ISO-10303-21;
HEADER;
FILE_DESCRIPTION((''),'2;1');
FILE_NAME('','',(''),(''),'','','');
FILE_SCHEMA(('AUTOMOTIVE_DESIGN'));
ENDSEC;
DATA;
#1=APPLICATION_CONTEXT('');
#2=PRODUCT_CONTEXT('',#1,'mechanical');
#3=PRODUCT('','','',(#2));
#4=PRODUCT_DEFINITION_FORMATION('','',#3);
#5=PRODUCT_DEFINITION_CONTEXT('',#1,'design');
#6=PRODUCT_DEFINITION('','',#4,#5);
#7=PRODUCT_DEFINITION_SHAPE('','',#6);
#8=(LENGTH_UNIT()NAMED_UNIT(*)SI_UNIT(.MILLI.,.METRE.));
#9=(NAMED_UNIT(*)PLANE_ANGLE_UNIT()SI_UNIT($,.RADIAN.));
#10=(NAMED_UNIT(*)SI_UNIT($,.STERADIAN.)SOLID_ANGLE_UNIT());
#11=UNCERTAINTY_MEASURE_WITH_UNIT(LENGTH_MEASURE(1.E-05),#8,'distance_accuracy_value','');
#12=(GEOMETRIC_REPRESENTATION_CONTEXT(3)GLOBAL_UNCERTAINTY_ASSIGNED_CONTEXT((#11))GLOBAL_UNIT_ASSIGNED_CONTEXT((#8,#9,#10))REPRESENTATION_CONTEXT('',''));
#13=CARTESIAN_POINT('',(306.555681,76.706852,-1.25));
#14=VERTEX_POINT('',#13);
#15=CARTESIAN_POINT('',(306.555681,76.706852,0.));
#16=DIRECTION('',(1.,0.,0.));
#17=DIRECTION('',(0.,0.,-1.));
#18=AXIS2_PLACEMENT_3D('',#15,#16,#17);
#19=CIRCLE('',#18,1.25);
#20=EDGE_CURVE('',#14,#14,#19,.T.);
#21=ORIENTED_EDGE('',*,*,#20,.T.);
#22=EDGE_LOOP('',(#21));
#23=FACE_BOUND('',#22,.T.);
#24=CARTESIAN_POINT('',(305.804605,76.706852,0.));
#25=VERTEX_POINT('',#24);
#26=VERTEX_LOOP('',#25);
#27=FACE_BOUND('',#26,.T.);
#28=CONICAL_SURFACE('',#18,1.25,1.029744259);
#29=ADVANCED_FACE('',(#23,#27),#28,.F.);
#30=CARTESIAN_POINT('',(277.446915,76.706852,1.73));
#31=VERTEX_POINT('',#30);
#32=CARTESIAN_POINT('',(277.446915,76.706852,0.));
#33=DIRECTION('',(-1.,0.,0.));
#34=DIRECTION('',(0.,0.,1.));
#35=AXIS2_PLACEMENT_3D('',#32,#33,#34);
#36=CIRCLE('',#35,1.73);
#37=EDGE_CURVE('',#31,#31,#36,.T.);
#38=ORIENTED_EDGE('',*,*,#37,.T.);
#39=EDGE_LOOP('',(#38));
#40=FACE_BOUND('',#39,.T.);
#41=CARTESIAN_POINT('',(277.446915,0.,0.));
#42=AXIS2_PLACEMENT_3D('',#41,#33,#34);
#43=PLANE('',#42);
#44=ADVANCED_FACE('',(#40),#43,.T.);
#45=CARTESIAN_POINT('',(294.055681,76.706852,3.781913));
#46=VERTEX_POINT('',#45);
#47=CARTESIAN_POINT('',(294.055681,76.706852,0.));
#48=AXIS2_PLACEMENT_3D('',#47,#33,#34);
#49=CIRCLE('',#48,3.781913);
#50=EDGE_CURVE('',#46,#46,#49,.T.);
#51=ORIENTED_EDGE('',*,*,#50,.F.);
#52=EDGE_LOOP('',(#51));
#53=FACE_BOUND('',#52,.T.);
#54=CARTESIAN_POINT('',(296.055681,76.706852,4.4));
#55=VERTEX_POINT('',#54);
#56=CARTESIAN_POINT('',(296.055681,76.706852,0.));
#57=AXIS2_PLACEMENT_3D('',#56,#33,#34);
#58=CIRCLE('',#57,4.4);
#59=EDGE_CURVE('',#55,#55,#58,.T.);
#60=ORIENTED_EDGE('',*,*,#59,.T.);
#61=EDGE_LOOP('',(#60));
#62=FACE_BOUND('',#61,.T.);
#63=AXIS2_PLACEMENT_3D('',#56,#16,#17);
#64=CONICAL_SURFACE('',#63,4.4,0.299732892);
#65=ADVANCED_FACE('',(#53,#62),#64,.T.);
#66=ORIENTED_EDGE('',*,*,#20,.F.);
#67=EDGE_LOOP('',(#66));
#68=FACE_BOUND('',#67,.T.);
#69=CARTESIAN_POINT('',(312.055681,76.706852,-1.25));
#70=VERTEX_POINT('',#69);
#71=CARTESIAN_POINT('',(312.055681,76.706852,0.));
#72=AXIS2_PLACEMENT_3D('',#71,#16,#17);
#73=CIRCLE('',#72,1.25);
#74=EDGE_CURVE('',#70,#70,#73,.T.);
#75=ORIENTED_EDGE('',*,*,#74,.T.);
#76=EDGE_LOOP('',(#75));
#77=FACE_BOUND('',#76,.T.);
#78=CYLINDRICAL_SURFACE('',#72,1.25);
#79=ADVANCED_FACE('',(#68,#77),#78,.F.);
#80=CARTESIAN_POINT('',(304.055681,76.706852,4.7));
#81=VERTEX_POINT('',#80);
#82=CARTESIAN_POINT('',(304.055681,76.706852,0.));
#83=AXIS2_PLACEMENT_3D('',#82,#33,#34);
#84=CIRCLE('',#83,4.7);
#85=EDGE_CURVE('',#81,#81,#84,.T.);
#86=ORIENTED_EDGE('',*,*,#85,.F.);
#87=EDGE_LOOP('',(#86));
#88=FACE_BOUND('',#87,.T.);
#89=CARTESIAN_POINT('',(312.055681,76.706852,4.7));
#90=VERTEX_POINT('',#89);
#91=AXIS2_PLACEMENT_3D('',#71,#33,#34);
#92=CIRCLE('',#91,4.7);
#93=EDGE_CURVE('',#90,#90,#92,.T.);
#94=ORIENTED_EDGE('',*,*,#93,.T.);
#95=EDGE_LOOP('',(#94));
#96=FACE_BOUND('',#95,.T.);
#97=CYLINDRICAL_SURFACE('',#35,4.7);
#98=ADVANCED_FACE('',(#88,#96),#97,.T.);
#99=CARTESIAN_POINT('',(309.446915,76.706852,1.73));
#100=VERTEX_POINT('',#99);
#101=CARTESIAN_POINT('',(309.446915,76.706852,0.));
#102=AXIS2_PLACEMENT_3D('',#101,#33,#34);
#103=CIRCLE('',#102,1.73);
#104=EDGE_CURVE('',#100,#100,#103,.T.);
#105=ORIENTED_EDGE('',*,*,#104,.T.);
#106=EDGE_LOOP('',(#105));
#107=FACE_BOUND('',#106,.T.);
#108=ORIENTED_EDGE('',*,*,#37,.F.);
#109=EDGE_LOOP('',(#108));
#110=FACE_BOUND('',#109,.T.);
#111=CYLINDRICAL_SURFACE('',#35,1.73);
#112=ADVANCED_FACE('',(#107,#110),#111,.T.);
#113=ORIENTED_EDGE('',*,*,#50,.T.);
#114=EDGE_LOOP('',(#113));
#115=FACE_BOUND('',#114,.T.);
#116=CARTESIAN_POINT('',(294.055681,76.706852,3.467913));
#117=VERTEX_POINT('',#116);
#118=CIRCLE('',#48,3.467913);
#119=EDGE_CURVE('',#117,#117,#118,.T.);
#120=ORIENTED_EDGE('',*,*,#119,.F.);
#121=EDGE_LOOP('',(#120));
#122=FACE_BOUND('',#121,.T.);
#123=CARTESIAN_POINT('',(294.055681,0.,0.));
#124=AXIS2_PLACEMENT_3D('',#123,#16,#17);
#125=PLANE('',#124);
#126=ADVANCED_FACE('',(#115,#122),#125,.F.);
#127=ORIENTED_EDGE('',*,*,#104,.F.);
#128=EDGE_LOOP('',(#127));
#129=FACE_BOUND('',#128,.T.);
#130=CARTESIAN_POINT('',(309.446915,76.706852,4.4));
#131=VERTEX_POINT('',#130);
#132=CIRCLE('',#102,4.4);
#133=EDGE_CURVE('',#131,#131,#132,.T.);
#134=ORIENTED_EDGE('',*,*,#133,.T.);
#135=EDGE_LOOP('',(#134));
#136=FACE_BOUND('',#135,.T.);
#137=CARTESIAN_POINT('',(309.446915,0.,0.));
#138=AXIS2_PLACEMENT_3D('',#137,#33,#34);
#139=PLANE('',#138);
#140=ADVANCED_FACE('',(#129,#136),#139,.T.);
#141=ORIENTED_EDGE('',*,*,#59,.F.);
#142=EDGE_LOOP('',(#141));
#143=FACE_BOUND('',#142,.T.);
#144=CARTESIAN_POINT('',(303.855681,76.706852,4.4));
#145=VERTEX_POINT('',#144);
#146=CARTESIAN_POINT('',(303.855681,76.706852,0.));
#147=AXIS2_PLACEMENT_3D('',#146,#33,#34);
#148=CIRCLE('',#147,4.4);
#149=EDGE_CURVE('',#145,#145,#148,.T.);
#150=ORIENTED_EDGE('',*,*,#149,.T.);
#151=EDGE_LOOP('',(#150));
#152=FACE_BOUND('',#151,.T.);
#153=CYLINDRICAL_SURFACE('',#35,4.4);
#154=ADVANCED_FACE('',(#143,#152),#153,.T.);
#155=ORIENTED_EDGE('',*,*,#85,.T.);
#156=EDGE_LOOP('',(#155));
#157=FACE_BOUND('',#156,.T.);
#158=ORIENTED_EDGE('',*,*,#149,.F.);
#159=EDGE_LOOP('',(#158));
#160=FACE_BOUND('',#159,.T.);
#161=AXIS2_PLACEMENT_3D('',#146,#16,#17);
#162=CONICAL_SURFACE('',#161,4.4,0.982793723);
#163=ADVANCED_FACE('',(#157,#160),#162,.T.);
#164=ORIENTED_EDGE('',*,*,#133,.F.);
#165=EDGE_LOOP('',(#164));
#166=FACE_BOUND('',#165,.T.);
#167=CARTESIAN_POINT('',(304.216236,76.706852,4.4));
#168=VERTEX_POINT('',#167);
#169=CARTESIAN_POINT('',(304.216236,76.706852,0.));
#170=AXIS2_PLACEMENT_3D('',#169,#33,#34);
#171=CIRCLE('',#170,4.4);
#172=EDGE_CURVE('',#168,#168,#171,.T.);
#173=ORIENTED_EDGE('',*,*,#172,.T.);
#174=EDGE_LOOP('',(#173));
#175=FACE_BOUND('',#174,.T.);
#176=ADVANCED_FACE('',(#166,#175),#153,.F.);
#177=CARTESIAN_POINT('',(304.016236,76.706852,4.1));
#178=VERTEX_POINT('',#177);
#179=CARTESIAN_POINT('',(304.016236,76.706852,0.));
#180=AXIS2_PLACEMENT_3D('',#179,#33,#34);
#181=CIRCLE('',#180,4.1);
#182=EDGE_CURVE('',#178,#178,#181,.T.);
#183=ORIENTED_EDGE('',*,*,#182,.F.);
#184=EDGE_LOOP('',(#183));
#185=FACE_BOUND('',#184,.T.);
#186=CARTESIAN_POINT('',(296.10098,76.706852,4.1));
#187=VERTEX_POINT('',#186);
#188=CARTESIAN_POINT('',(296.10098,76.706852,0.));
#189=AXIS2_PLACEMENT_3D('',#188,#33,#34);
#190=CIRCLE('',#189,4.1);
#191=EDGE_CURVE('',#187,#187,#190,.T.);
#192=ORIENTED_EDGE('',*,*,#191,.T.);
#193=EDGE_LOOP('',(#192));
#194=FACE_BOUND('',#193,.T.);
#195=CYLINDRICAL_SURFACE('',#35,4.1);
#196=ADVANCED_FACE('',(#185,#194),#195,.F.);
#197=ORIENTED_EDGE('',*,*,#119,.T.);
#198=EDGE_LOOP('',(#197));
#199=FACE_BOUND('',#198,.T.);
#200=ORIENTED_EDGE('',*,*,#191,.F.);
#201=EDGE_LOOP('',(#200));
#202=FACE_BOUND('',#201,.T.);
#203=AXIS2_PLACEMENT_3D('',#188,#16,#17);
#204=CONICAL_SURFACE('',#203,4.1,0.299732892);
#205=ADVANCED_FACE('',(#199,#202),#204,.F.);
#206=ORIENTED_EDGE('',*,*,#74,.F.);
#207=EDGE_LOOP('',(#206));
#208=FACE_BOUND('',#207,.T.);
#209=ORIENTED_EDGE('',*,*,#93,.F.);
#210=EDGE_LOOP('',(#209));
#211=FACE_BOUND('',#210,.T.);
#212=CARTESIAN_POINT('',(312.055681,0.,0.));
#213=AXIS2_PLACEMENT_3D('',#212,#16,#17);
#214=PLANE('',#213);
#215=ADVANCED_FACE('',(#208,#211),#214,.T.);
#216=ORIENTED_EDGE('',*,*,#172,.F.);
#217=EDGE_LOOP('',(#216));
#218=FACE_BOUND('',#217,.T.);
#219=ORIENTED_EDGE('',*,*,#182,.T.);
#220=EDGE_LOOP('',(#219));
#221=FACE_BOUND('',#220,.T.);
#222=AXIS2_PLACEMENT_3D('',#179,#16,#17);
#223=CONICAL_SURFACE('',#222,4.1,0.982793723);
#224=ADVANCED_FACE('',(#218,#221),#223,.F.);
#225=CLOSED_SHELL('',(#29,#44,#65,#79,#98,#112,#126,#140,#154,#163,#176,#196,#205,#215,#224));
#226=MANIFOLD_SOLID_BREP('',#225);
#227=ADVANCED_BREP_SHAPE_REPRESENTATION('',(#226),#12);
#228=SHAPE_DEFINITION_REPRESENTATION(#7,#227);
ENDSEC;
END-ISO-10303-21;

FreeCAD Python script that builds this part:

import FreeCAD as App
import Part
import Sketcher
Q = App.Units.Quantity

doc = App.newDocument("Part")
params = doc.addObject("Spreadsheet::Sheet", "Params")
for row, (alias, value) in enumerate([
    ("sketch1_width", "32 mm"),
    ("sketch1_width2", "8 mm"),
    ("sketch1_width3", "7.8 mm"),
    ("sketch1_height", "4.7 mm"),
    ("sketch1_height2", "2.67 mm"),
    ("revolution_angle", "360 deg"),
    ("sketch2_diameter", "2.5 mm"),
    ("hole_diameter", "2.5 mm"),
    ("hole_depth", "5.5 mm"),
], start=1):
    params.set(f"A{row}", alias)
    params.set(f"B{row}", "=" + value)
    params.setAlias(f"B{row}", alias)

body = doc.addObject("PartDesign::Body", "Body")

sketch1 = body.newObject("Sketcher::SketchObject", "Sketch")
sketch1.AttachmentSupport = (doc.getObject("XY_Plane"), [""])
sketch1.MapMode = "FlatFace"
sketch1.addGeometry([
    Part.LineSegment(App.Vector(303.86, 81.11, 0), App.Vector(296.06, 81.11, 0)),
    Part.LineSegment(App.Vector(296.06, 81.11, 0), App.Vector(294.06, 80.49, 0)),
    Part.LineSegment(App.Vector(294.06, 80.49, 0), App.Vector(294.06, 80.17, 0)),
    Part.LineSegment(App.Vector(294.06, 80.17, 0), App.Vector(296.1, 80.81, 0)),
    Part.LineSegment(App.Vector(296.1, 80.81, 0), App.Vector(304.02, 80.81, 0)),
    Part.LineSegment(App.Vector(304.02, 80.81, 0), App.Vector(304.22, 81.11, 0)),
    Part.LineSegment(App.Vector(304.22, 81.11, 0), App.Vector(309.45, 81.11, 0)),
    Part.LineSegment(App.Vector(309.45, 81.11, 0), App.Vector(309.45, 78.44, 0)),
    Part.LineSegment(App.Vector(309.45, 78.44, 0), App.Vector(277.45, 78.44, 0)),
    Part.LineSegment(App.Vector(277.45, 78.44, 0), App.Vector(277.45, 76.71, 0)),
    Part.LineSegment(App.Vector(277.45, 76.71, 0), App.Vector(312.06, 76.71, 0)),
    Part.LineSegment(App.Vector(312.06, 76.71, 0), App.Vector(312.06, 81.41, 0)),
    Part.LineSegment(App.Vector(312.06, 81.41, 0), App.Vector(304.06, 81.41, 0)),
    Part.LineSegment(App.Vector(304.06, 81.41, 0), App.Vector(303.86, 81.11, 0)),
], False)
sketch1.addGeometry(Part.LineSegment(App.Vector(277.45, 76.71, 0), App.Vector(312.06, 76.71, 0)), True)
sketch1.addConstraint([
    Sketcher.Constraint("Coincident", 0, 2, 1, 1),
    Sketcher.Constraint("Coincident", 1, 2, 2, 1),
    Sketcher.Constraint("Coincident", 2, 2, 3, 1),
    Sketcher.Constraint("Coincident", 3, 2, 4, 1),
    Sketcher.Constraint("Coincident", 4, 2, 5, 1),
    Sketcher.Constraint("Coincident", 5, 2, 6, 1),
    Sketcher.Constraint("Coincident", 6, 2, 7, 1),
    Sketcher.Constraint("Coincident", 7, 2, 8, 1),
    Sketcher.Constraint("Coincident", 8, 2, 9, 1),
    Sketcher.Constraint("Coincident", 9, 2, 10, 1),
    Sketcher.Constraint("Coincident", 10, 2, 11, 1),
    Sketcher.Constraint("Coincident", 11, 2, 12, 1),
    Sketcher.Constraint("Coincident", 12, 2, 13, 1),
    Sketcher.Constraint("Coincident", 13, 2, 0, 1),
    Sketcher.Constraint("Horizontal", 0),
    Sketcher.Constraint("Vertical", 2),
    Sketcher.Constraint("Horizontal", 4),
    Sketcher.Constraint("Horizontal", 6),
    Sketcher.Constraint("Vertical", 7),
    Sketcher.Constraint("Horizontal", 8),
    Sketcher.Constraint("Vertical", 9),
    Sketcher.Constraint("Horizontal", 10),
    Sketcher.Constraint("Vertical", 11),
    Sketcher.Constraint("Horizontal", 12),
    Sketcher.Constraint("Horizontal", 14),
    Sketcher.Constraint("Coincident", 14, 1, 9, 2),
    Sketcher.Constraint("Parallel", 1, 3),
    Sketcher.Constraint("Parallel", 5, 13),
    Sketcher.Constraint("Horizontal", 0, 2, 5, 2),
    Sketcher.Constraint("Vertical", 11, 2, 14, 2),
    Sketcher.Constraint("Equal", 5, 13),
    Sketcher.Constraint("DistanceX", 8, 2, 8, 1, Q("32 mm")),
    Sketcher.Constraint("DistanceX", 12, 2, 12, 1, Q("8 mm")),
    Sketcher.Constraint("DistanceX", 0, 2, 0, 1, Q("7.8 mm")),
    Sketcher.Constraint("DistanceY", 11, 1, 11, 2, Q("4.7 mm")),
    Sketcher.Constraint("DistanceX", 1, 2, 0, 2, Q("2 mm")),
    Sketcher.Constraint("DistanceY", 7, 2, 7, 1, Q("2.67 mm")),
    Sketcher.Constraint("DistanceY", 9, 2, 9, 1, Q("1.73 mm")),
    Sketcher.Constraint("DistanceX", 4, 2, 5, 2, Q("0.2 mm")),
    Sketcher.Constraint("DistanceY", 2, 2, 2, 1, Q("0.314 mm")),
    Sketcher.Constraint("DistanceX", 6, 1, 6, 2, Q("5.23068 mm")),
    Sketcher.Constraint("DistanceX", 0, 2, 3, 2, Q("0.0453 mm")),
    Sketcher.Constraint("DistanceX", 4, 1, 4, 2, Q("7.915256 mm")),
    Sketcher.Constraint("DistanceX", -1, 1, 0, 2, Q("296.055681 mm")),
    Sketcher.Constraint("DistanceY", -1, 1, 0, 2, Q("81.106852 mm")),
])
sketch1.setExpression("Constraints[31]", "Params.sketch1_width")
sketch1.setExpression("Constraints[32]", "Params.sketch1_width2")
sketch1.setExpression("Constraints[33]", "Params.sketch1_width3")
sketch1.setExpression("Constraints[34]", "Params.sketch1_height")
sketch1.setExpression("Constraints[36]", "Params.sketch1_height2")
revolution = body.newObject("PartDesign::Revolution", "Revolution")
revolution.Profile = sketch1
revolution.ReferenceAxis = (sketch1, ["Axis0"])
revolution.setExpression("Angle", "Params.revolution_angle")

sketch2 = body.newObject("Sketcher::SketchObject", "Sketch001")
sketch2.AttachmentSupport = (doc.getObject("YZ_Plane"), [""])
sketch2.MapMode = "FlatFace"
sketch2.AttachmentOffset = App.Placement(App.Vector(0, 0, 312.055681), App.Rotation())
sketch2.addGeometry(Part.Circle(App.Vector(76.7, 0, 0), App.Vector(0, 0, 1), 1.2), False)
sketch2.addConstraint([
    Sketcher.Constraint("PointOnObject", 0, 3, -1),
    Sketcher.Constraint("Diameter", 0, Q("2.5 mm")),
    Sketcher.Constraint("DistanceX", -1, 1, 0, 3, Q("76.706852 mm")),
])
sketch2.setExpression("Constraints[1]", "Params.sketch2_diameter")
doc.recompute()
hole = body.newObject("PartDesign::Hole", "Hole")
hole.Profile = sketch2
hole.ThreadType = "None"
hole.setExpression("Diameter", "Params.hole_diameter")
hole.DepthType = "Dimension"
hole.setExpression("Depth", "Params.hole_depth")
hole.DrillPoint = "Angled"
hole.DrillPointAngle = 118

doc.recompute()
